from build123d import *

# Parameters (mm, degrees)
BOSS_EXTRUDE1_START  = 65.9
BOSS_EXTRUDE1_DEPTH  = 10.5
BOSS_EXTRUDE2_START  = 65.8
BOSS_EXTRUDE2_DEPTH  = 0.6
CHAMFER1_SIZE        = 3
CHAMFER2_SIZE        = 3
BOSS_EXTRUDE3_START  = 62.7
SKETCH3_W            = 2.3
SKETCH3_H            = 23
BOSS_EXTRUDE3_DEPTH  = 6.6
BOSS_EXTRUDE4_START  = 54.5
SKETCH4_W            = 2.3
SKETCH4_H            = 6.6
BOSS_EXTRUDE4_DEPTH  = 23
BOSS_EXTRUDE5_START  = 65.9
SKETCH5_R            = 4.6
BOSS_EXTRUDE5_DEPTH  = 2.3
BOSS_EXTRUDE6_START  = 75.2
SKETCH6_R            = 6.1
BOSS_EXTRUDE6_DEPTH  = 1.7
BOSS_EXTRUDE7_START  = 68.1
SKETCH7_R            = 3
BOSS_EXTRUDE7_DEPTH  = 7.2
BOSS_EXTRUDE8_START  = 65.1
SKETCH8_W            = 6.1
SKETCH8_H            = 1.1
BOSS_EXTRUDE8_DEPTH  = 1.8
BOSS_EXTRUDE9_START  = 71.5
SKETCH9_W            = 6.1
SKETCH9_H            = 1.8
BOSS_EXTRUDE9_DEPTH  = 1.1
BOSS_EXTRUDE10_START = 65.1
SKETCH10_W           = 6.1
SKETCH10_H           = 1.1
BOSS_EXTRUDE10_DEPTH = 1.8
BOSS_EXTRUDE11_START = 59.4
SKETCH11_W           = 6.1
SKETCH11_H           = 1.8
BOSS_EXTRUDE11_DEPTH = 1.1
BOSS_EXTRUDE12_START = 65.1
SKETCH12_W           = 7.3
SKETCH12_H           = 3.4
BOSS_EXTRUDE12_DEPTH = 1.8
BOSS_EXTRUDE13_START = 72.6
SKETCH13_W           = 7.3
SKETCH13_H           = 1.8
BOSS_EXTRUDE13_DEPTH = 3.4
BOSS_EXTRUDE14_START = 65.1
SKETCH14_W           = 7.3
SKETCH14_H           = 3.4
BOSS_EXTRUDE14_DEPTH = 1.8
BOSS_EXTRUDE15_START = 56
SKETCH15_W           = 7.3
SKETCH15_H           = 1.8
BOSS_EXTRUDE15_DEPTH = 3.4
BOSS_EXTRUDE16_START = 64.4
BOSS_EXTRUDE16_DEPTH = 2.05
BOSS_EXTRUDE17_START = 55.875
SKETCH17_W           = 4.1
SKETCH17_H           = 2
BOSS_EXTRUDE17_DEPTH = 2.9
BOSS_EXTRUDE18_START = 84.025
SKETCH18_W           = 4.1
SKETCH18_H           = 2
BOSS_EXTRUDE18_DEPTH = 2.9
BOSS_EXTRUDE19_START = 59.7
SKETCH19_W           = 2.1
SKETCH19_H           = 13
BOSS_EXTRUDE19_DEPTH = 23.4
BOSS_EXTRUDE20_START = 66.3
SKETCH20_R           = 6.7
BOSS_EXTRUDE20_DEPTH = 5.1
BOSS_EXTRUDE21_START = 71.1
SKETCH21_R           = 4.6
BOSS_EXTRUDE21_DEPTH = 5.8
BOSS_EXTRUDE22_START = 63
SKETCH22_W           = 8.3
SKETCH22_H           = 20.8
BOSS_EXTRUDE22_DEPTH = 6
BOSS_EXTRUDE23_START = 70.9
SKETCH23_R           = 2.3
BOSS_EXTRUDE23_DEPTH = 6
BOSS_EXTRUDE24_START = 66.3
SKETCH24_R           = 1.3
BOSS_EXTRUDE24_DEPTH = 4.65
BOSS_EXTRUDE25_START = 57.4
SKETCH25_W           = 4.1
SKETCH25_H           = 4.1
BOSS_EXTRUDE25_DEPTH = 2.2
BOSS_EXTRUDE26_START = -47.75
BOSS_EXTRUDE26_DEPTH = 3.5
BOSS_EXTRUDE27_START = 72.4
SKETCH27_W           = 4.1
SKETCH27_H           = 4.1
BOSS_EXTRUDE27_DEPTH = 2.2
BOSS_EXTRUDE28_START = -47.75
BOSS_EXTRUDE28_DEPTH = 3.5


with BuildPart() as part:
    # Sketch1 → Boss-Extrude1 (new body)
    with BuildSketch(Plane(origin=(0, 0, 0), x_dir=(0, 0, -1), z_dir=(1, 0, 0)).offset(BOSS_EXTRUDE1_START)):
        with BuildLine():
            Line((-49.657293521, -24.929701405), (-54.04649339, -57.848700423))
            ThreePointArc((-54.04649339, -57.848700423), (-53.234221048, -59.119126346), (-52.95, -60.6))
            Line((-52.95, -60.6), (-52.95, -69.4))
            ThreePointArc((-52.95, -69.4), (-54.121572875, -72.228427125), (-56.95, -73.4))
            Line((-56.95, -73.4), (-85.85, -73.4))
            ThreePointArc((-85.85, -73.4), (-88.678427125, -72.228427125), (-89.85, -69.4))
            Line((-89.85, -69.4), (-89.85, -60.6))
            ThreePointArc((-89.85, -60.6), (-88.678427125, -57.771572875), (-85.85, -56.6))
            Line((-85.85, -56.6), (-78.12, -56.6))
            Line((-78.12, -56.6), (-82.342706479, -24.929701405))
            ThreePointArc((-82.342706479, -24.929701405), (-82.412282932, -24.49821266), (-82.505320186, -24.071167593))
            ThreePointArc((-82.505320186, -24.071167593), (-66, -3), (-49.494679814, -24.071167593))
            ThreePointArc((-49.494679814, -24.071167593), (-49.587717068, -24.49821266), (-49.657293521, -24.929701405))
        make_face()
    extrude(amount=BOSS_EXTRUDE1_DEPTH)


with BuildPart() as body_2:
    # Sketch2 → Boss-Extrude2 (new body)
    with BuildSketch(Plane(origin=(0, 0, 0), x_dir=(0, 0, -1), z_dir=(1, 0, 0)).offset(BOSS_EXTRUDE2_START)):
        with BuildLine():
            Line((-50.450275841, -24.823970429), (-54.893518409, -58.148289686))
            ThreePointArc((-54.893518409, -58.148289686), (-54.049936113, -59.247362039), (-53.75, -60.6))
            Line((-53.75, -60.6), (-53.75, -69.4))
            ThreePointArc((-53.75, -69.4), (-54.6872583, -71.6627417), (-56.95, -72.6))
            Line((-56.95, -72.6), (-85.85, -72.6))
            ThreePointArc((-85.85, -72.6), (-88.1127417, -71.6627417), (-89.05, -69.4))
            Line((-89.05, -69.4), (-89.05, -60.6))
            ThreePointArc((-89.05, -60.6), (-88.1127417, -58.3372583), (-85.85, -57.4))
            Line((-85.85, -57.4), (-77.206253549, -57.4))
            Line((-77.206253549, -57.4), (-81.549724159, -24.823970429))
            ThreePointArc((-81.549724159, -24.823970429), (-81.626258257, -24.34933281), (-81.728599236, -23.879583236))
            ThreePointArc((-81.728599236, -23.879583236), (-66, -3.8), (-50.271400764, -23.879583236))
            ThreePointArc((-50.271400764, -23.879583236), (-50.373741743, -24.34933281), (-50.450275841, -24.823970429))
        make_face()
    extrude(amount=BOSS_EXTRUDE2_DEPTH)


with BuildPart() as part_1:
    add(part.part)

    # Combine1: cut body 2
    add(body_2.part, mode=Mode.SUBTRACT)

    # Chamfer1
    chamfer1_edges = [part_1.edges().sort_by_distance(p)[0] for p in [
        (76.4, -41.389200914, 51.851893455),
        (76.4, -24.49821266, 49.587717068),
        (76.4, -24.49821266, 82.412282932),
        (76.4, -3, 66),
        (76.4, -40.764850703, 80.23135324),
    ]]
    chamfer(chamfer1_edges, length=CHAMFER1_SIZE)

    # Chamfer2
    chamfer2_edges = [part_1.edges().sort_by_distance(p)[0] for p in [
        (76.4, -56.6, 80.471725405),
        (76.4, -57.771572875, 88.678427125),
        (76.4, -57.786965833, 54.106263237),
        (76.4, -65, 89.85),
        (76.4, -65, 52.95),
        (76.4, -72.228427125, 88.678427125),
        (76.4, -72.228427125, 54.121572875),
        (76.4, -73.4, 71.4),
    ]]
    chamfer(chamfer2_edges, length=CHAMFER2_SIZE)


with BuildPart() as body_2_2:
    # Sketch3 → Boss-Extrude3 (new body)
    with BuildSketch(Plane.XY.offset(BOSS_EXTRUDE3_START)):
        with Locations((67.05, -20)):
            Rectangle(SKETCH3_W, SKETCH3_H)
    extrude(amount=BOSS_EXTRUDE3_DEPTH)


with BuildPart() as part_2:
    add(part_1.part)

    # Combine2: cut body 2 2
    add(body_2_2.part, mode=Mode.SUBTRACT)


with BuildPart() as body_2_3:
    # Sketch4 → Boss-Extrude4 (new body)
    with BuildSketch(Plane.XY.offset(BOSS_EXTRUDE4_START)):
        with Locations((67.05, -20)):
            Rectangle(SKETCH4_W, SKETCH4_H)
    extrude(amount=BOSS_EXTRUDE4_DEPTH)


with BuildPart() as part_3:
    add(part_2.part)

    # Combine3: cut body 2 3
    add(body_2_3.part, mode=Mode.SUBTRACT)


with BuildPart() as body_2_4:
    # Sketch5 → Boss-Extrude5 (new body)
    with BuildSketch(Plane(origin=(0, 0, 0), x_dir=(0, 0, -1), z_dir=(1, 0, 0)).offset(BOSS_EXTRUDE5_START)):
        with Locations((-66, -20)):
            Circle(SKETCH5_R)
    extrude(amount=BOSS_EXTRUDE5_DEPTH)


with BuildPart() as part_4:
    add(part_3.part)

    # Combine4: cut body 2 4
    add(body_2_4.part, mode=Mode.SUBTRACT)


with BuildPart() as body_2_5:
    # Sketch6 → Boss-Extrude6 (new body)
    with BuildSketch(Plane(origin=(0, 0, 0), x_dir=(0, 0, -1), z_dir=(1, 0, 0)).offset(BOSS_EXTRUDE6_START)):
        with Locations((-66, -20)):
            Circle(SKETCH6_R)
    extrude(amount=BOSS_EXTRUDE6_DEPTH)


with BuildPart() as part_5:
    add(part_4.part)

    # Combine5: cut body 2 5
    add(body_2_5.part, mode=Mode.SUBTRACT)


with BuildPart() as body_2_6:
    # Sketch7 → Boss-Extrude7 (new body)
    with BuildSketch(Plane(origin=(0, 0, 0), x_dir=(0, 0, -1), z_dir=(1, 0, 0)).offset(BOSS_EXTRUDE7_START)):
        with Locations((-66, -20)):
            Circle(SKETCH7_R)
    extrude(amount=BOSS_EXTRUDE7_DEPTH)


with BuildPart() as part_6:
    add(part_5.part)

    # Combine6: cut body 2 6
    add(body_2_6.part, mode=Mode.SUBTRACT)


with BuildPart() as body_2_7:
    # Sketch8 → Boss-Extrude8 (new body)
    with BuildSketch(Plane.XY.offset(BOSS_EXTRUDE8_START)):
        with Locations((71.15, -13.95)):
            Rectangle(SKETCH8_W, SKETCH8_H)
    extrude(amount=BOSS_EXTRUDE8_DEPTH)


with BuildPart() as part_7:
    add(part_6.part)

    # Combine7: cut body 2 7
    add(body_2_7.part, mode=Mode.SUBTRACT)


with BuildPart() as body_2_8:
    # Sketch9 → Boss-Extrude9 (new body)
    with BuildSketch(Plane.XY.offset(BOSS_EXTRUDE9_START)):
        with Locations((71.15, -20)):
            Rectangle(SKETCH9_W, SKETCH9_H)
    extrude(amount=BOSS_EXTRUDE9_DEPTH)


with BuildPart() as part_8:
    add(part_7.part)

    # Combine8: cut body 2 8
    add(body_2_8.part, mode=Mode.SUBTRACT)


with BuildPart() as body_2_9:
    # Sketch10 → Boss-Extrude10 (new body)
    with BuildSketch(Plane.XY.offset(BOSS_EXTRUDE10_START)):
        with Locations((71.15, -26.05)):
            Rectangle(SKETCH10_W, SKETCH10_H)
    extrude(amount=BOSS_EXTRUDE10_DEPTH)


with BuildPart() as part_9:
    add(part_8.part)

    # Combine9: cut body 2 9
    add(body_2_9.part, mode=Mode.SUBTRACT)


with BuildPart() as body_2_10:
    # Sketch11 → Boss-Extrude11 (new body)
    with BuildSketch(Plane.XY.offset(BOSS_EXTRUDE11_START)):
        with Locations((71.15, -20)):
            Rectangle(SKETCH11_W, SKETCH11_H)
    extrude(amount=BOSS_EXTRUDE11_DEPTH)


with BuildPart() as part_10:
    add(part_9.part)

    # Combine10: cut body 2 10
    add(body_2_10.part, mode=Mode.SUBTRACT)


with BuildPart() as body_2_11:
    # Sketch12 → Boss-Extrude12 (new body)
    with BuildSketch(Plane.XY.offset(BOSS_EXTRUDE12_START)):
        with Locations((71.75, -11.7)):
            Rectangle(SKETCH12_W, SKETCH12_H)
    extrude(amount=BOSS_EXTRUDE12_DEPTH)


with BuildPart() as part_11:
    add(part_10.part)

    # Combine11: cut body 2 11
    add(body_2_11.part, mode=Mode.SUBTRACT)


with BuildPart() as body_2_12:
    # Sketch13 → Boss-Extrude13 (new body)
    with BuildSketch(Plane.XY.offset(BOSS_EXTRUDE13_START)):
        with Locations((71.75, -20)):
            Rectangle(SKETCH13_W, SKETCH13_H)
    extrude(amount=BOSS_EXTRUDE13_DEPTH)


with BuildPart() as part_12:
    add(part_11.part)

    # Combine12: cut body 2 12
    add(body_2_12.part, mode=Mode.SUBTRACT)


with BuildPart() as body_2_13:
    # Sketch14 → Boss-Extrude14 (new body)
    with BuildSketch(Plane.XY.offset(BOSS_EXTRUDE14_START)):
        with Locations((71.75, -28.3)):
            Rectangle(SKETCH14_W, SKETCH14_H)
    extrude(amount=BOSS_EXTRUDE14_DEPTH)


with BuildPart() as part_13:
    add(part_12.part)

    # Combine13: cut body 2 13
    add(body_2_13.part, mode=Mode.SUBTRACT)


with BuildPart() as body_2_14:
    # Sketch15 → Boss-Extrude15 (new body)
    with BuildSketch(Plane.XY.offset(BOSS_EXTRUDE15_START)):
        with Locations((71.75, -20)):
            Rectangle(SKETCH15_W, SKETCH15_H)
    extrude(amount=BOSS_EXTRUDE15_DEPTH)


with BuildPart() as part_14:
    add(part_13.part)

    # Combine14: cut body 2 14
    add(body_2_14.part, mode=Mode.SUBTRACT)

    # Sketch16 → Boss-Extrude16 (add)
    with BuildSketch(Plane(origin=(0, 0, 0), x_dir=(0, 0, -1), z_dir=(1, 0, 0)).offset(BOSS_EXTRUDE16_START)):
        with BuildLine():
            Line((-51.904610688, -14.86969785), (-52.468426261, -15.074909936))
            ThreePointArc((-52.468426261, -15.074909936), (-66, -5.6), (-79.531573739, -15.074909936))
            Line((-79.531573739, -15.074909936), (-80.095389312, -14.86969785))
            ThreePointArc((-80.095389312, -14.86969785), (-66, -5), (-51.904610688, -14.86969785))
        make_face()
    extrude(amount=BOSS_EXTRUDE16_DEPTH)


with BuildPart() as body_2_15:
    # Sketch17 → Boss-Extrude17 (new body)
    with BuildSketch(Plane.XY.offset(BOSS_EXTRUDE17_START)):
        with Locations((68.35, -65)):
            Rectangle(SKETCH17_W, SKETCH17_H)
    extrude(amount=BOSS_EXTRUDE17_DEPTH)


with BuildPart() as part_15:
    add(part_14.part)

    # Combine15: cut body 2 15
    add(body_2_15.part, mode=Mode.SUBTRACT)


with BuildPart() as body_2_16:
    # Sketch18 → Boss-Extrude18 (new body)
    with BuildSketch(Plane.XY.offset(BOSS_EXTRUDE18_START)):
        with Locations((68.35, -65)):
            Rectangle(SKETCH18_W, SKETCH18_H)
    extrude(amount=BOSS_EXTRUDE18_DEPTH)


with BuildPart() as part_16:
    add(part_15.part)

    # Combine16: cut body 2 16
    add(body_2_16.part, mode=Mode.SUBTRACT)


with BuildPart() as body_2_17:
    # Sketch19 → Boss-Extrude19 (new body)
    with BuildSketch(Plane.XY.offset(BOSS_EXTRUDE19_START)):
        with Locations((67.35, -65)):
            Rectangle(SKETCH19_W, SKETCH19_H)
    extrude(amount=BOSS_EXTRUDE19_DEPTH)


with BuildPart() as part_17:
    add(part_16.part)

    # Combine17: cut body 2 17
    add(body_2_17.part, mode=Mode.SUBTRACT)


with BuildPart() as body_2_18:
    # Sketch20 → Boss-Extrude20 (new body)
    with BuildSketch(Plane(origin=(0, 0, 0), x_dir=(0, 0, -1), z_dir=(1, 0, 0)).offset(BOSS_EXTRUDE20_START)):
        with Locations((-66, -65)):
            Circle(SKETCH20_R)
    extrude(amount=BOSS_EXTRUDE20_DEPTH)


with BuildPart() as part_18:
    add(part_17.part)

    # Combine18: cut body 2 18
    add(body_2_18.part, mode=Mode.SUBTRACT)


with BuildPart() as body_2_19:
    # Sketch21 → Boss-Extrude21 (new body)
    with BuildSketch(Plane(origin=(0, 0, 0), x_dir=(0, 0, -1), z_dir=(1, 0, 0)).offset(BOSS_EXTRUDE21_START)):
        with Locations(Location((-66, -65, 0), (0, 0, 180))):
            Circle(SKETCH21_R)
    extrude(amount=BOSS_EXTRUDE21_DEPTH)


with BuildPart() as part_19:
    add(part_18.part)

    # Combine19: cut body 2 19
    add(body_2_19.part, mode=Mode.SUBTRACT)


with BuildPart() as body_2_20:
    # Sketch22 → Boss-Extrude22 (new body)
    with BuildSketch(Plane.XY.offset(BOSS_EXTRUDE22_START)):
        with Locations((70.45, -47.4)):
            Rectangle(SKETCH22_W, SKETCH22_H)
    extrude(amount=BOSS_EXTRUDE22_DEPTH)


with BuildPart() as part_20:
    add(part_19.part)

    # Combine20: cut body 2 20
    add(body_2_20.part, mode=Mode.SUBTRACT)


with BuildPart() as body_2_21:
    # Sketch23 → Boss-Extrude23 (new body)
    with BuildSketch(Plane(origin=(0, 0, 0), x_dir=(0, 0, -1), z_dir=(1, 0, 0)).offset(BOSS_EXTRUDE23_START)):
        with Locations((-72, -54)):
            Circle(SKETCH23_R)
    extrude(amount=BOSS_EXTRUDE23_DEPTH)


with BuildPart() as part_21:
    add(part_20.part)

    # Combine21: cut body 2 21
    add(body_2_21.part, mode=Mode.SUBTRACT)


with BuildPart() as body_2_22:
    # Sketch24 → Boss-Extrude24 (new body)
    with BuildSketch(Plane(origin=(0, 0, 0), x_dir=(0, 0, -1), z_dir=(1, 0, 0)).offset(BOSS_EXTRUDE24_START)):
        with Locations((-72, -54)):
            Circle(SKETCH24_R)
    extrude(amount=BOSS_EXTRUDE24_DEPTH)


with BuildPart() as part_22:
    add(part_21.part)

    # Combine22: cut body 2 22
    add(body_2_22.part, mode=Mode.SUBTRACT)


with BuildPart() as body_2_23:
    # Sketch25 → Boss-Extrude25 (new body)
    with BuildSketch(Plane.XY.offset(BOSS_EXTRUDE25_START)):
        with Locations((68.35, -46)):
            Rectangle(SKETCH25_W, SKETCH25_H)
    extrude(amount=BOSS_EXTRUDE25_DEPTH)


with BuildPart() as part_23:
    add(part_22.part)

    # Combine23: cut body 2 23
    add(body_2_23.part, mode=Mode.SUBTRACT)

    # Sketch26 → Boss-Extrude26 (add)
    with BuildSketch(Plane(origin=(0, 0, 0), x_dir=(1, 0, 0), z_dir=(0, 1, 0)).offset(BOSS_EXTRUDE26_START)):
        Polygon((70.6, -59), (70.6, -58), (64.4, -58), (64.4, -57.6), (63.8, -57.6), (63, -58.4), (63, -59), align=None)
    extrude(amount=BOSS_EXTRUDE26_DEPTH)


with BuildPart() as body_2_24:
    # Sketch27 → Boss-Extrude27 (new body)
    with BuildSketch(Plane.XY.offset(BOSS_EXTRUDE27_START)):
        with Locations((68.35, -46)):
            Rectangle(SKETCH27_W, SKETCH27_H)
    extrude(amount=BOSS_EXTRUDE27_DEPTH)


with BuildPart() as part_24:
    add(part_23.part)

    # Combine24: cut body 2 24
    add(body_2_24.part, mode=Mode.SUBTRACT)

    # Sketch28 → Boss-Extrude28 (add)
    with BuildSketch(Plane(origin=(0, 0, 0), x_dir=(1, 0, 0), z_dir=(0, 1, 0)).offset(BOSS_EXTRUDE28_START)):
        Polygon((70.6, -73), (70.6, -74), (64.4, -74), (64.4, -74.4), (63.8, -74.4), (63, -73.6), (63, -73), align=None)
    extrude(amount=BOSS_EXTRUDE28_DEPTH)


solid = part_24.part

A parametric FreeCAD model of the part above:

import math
import FreeCAD as App
import Part
import Sketcher
from FreeCAD import Vector
Q = App.Units.Quantity


def edges_at(feature, points):
    """Names of the edges that pass closest to the given points."""
    edges = feature.Shape.Edges
    near = lambda p: min(range(len(edges)), key=lambda i: edges[i].distToShape(Part.Vertex(*p))[0])
    return sorted({f"Edge{near(p) + 1}" for p in points})


def add_polygon(sketch, points):
    """Adds a closed chain of lines whose ends are joined by coincident constraints."""
    first, n = sketch.GeometryCount, len(points)
    for a, b in zip(points, points[1:] + points[:1]):
        sketch.addGeometry(Part.LineSegment(App.Vector(*a, 0), App.Vector(*b, 0)), False)
    for i in range(n):
        sketch.addConstraint(Sketcher.Constraint("Coincident", first + i, 2, first + (i + 1) % n, 1))

doc = App.newDocument("Part")
body = doc.addObject("PartDesign::Body", "Body")

sketch1 = body.newObject("Sketcher::SketchObject", "Sketch")
sketch1.AttachmentSupport = (doc.getObject("YZ_Plane"), [""])
sketch1.MapMode = "FlatFace"
sketch1.AttachmentOffset = App.Placement(Vector(0, 0, 65.9), App.Rotation())
sketch1.addGeometry(Part.LineSegment(Vector(-57.8, 54, 0), Vector(-24.9, 49.7, 0)), False)
sketch1.addGeometry(Part.ArcOfCircle(Part.Circle(Vector(-26, 41.7, 0), Vector(0, 0, 1), 8), math.radians(76.14), math.radians(82.41)), False)
sketch1.addGeometry(Part.ArcOfCircle(Part.Circle(Vector(-20, 66, 0), Vector(0, 0, 1), 17), math.radians(-104), math.radians(104)), False)
sketch1.addGeometry(Part.ArcOfCircle(Part.Circle(Vector(-26, 90.3, 0), Vector(0, 0, 1), 8), math.radians(-82.41), math.radians(-76.14)), False)
sketch1.addGeometry(Part.LineSegment(Vector(-24.9, 82.3, 0), Vector(-56.6, 78.1, 0)), False)
sketch1.addGeometry(Part.LineSegment(Vector(-56.6, 78.1, 0), Vector(-56.6, 85.8, 0)), False)
sketch1.addGeometry(Part.ArcOfCircle(Part.Circle(Vector(-60.6, 85.9, 0), Vector(0, 0, 1), 4), math.radians(0), math.radians(90)), False)
sketch1.addGeometry(Part.LineSegment(Vector(-60.6, 89.8, 0), Vector(-69.4, 89.8, 0)), False)
sketch1.addGeometry(Part.ArcOfCircle(Part.Circle(Vector(-69.4, 85.9, 0), Vector(0, 0, 1), 4), math.radians(90), math.radians(180)), False)
sketch1.addGeometry(Part.LineSegment(Vector(-73.4, 85.8, 0), Vector(-73.4, 57, 0)), False)
sketch1.addGeometry(Part.ArcOfCircle(Part.Circle(Vector(-69.4, 56.9, 0), Vector(0, 0, 1), 4), math.radians(180), math.radians(270)), False)
sketch1.addGeometry(Part.LineSegment(Vector(-69.4, 53, 0), Vector(-60.6, 53, 0)), False)
sketch1.addGeometry(Part.ArcOfCircle(Part.Circle(Vector(-60.6, 56.9, 0), Vector(0, 0, 1), 4), math.radians(-90), math.radians(-47)), False)
sketch1.addConstraint(Sketcher.Constraint("Tangent", 0, 2, 1, 2))
sketch1.addConstraint(Sketcher.Constraint("Tangent", 1, 1, 2, 1))
sketch1.addConstraint(Sketcher.Constraint("Tangent", 2, 2, 3, 2))
sketch1.addConstraint(Sketcher.Constraint("Tangent", 3, 1, 4, 1))
sketch1.addConstraint(Sketcher.Constraint("Coincident", 4, 2, 5, 1))
sketch1.addConstraint(Sketcher.Constraint("Tangent", 5, 2, 6, 1))
sketch1.addConstraint(Sketcher.Constraint("Tangent", 6, 2, 7, 1))
sketch1.addConstraint(Sketcher.Constraint("Tangent", 7, 2, 8, 1))
sketch1.addConstraint(Sketcher.Constraint("Tangent", 8, 2, 9, 1))
sketch1.addConstraint(Sketcher.Constraint("Tangent", 9, 2, 10, 1))
sketch1.addConstraint(Sketcher.Constraint("Tangent", 10, 2, 11, 1))
sketch1.addConstraint(Sketcher.Constraint("Tangent", 11, 2, 12, 1))
sketch1.addConstraint(Sketcher.Constraint("Coincident", 12, 2, 0, 1))
sketch1.addConstraint(Sketcher.Constraint("Vertical", 5))
sketch1.addConstraint(Sketcher.Constraint("Horizontal", 7))
sketch1.addConstraint(Sketcher.Constraint("Vertical", 9))
sketch1.addConstraint(Sketcher.Constraint("Horizontal", 11))
sketch1.addConstraint(Sketcher.Constraint("Equal", 1, 3))
sketch1.addConstraint(Sketcher.Constraint("Equal", 6, 8))
sketch1.addConstraint(Sketcher.Constraint("Equal", 8, 10))
sketch1.addConstraint(Sketcher.Constraint("Equal", 10, 12))
sketch1.addConstraint(Sketcher.Constraint("Vertical", 1, 3, 3, 3))
sketch1.addConstraint(Sketcher.Constraint("Vertical", 6, 3, 12, 3))
sketch1.addConstraint(Sketcher.Constraint("Vertical", 0, 2, 3, 1))
sketch1.addConstraint(Sketcher.Constraint("Radius", 1, 8.0))
sketch1.addConstraint(Sketcher.Constraint("Radius", 2, 17.0))
sketch1.addConstraint(Sketcher.Constraint("Radius", 6, 4.0))
sketch1.addConstraint(Sketcher.Constraint("DistanceX", 7, 2, 7, 1, 8.8))
sketch1.addConstraint(Sketcher.Constraint("DistanceY", 9, 2, 9, 1, 28.9))
sketch1.addConstraint(Sketcher.Constraint("DistanceX", 2, 3, -1, 1, 20.0))
sketch1.addConstraint(Sketcher.Constraint("DistanceY", -1, 1, 2, 3, 66.0))
sketch1.addConstraint(Sketcher.Constraint("DistanceY", 5, 1, 5, 2, 7.73))
sketch1.addConstraint(Sketcher.Constraint("DistanceX", 6, 3, -1, 1, 60.6))
sketch1.addConstraint(Sketcher.Constraint("DistanceY", -1, 1, 6, 3, 85.85))
sketch1.addConstraint(Sketcher.Constraint("DistanceX", 0, 2, -1, 1, 24.929701))
pad1 = body.newObject("PartDesign::Pad", "Pad")
pad1.Profile = sketch1
pad1.Length = 10.5
body2 = doc.addObject("PartDesign::Body", "Body001")

sketch2 = body2.newObject("Sketcher::SketchObject", "Sketch001")
sketch2.AttachmentSupport = (doc.getObject("YZ_Plane001"), [""])
sketch2.MapMode = "FlatFace"
sketch2.AttachmentOffset = App.Placement(Vector(0, 0, 65.8), App.Rotation())
sketch2.addGeometry(Part.LineSegment(Vector(-58.1, 54.9, 0), Vector(-24.8, 50.5, 0)), False)
sketch2.addGeometry(Part.ArcOfCircle(Part.Circle(Vector(-26, 41.7, 0), Vector(0, 0, 1), 8.8), math.radians(76.14), math.radians(82.41)), False)
sketch2.addGeometry(Part.ArcOfCircle(Part.Circle(Vector(-20, 66, 0), Vector(0, 0, 1), 16.2), math.radians(-104), math.radians(104)), False)
sketch2.addGeometry(Part.ArcOfCircle(Part.Circle(Vector(-26, 90.3, 0), Vector(0, 0, 1), 8.8), math.radians(-82.41), math.radians(-76.14)), False)
sketch2.addGeometry(Part.LineSegment(Vector(-24.8, 81.5, 0), Vector(-57.4, 77.2, 0)), False)
sketch2.addGeometry(Part.LineSegment(Vector(-57.4, 77.2, 0), Vector(-57.4, 85.8, 0)), False)
sketch2.addGeometry(Part.ArcOfCircle(Part.Circle(Vector(-60.6, 85.9, 0), Vector(0, 0, 1), 3.2), math.radians(0), math.radians(90)), False)
sketch2.addGeometry(Part.LineSegment(Vector(-60.6, 89, 0), Vector(-69.4, 89, 0)), False)
sketch2.addGeometry(Part.ArcOfCircle(Part.Circle(Vector(-69.4, 85.9, 0), Vector(0, 0, 1), 3.2), math.radians(90), math.radians(180)), False)
sketch2.addGeometry(Part.LineSegment(Vector(-72.6, 85.8, 0), Vector(-72.6, 57, 0)), False)
sketch2.addGeometry(Part.ArcOfCircle(Part.Circle(Vector(-69.4, 56.9, 0), Vector(0, 0, 1), 3.2), math.radians(180), math.radians(270)), False)
sketch2.addGeometry(Part.LineSegment(Vector(-69.4, 53.8, 0), Vector(-60.6, 53.8, 0)), False)
sketch2.addGeometry(Part.ArcOfCircle(Part.Circle(Vector(-60.6, 56.9, 0), Vector(0, 0, 1), 3.2), math.radians(-90), math.radians(-40)), False)
sketch2.addConstraint(Sketcher.Constraint("Tangent", 0, 2, 1, 2))
sketch2.addConstraint(Sketcher.Constraint("Tangent", 1, 1, 2, 1))
sketch2.addConstraint(Sketcher.Constraint("Tangent", 2, 2, 3, 2))
sketch2.addConstraint(Sketcher.Constraint("Tangent", 3, 1, 4, 1))
sketch2.addConstraint(Sketcher.Constraint("Coincident", 4, 2, 5, 1))
sketch2.addConstraint(Sketcher.Constraint("Tangent", 5, 2, 6, 1))
sketch2.addConstraint(Sketcher.Constraint("Tangent", 6, 2, 7, 1))
sketch2.addConstraint(Sketcher.Constraint("Tangent", 7, 2, 8, 1))
sketch2.addConstraint(Sketcher.Constraint("Tangent", 8, 2, 9, 1))
sketch2.addConstraint(Sketcher.Constraint("Tangent", 9, 2, 10, 1))
sketch2.addConstraint(Sketcher.Constraint("Tangent", 10, 2, 11, 1))
sketch2.addConstraint(Sketcher.Constraint("Tangent", 11, 2, 12, 1))
sketch2.addConstraint(Sketcher.Constraint("Coincident", 12, 2, 0, 1))
sketch2.addConstraint(Sketcher.Constraint("Vertical", 5))
sketch2.addConstraint(Sketcher.Constraint("Horizontal", 7))
sketch2.addConstraint(Sketcher.Constraint("Vertical", 9))
sketch2.addConstraint(Sketcher.Constraint("Horizontal", 11))
sketch2.addConstraint(Sketcher.Constraint("Equal", 1, 3))
sketch2.addConstraint(Sketcher.Constraint("Equal", 6, 8))
sketch2.addConstraint(Sketcher.Constraint("Equal", 8, 10))
sketch2.addConstraint(Sketcher.Constraint("Equal", 10, 12))
sketch2.addConstraint(Sketcher.Constraint("Vertical", 1, 3, 3, 3))
sketch2.addConstraint(Sketcher.Constraint("Vertical", 6, 3, 12, 3))
sketch2.addConstraint(Sketcher.Constraint("Vertical", 0, 2, 3, 1))
sketch2.addConstraint(Sketcher.Constraint("Radius", 1, 8.8))
sketch2.addConstraint(Sketcher.Constraint("Radius", 2, 16.2))
sketch2.addConstraint(Sketcher.Constraint("Radius", 6, 3.2))
sketch2.addConstraint(Sketcher.Constraint("DistanceX", 7, 2, 7, 1, 8.8))
sketch2.addConstraint(Sketcher.Constraint("DistanceY", 9, 2, 9, 1, 28.9))
sketch2.addConstraint(Sketcher.Constraint("DistanceX", 2, 3, -1, 1, 20.0))
sketch2.addConstraint(Sketcher.Constraint("DistanceY", -1, 1, 2, 3, 66.0))
sketch2.addConstraint(Sketcher.Constraint("DistanceX", 6, 3, -1, 1, 60.6))
sketch2.addConstraint(Sketcher.Constraint("DistanceY", -1, 1, 6, 3, 85.85))
sketch2.addConstraint(Sketcher.Constraint("DistanceY", -1, 1, 1, 1, 50.271401))
sketch2.addConstraint(Sketcher.Constraint("Distance", 0, 33.61923))
pad2 = body2.newObject("PartDesign::Pad", "Pad001")
pad2.Profile = sketch2
pad2.Length = 0.6
doc.recompute()

boolean = body.newObject("PartDesign::Boolean", "Boolean")
boolean.Type = "Cut"
boolean.addObjects([body2])
doc.recompute()

chamfer = body.newObject("PartDesign::Chamfer", "Chamfer")
chamfer.Base = (boolean, edges_at(boolean, [
    (76.4, -41.389, 51.852),
    (76.4, -24.498, 49.588),
    (76.4, -24.498, 82.412),
    (76.4, -3, 66),
    (76.4, -40.765, 80.231),
]))
chamfer.Size = 3
doc.recompute()

chamfer2 = body.newObject("PartDesign::Chamfer", "Chamfer001")
chamfer2.Base = (chamfer, edges_at(chamfer, [
    (76.4, -56.6, 80.472),
    (76.4, -57.772, 88.678),
    (76.4, -57.787, 54.106),
    (76.4, -65, 89.85),
    (76.4, -65, 52.95),
    (76.4, -72.228, 88.678),
    (76.4, -72.228, 54.122),
    (76.4, -73.4, 71.4),
]))
chamfer2.Size = 3
body3 = doc.addObject("PartDesign::Body", "Body002")

sketch3 = body3.newObject("Sketcher::SketchObject", "Sketch002")
sketch3.AttachmentSupport = (doc.getObject("XY_Plane002"), [""])
sketch3.MapMode = "FlatFace"
sketch3.AttachmentOffset = App.Placement(Vector(0, 0, 62.7), App.Rotation())
add_polygon(sketch3, [(65.9, -8.5), (65.9, -31.5), (68.2, -31.5), (68.2, -8.5)])
sketch3.addConstraint(Sketcher.Constraint("Vertical", 0))
sketch3.addConstraint(Sketcher.Constraint("Horizontal", 1))
sketch3.addConstraint(Sketcher.Constraint("Vertical", 2))
sketch3.addConstraint(Sketcher.Constraint("Horizontal", 3))
sketch3.addConstraint(Sketcher.Constraint("DistanceY", 0, 2, 0, 1, 23.0))
sketch3.addConstraint(Sketcher.Constraint("DistanceX", 1, 1, 1, 2, 2.3))
sketch3.addConstraint(Sketcher.Constraint("DistanceX", -1, 1, 0, 2, 65.9))
sketch3.addConstraint(Sketcher.Constraint("DistanceY", 0, 2, -1, 1, 31.5))
pad3 = body3.newObject("PartDesign::Pad", "Pad002")
pad3.Profile = sketch3
pad3.Length = 6.6
doc.recompute()

boolean2 = body.newObject("PartDesign::Boolean", "Boolean001")
boolean2.Type = "Cut"
boolean2.addObjects([body3])
body4 = doc.addObject("PartDesign::Body", "Body003")

sketch4 = body4.newObject("Sketcher::SketchObject", "Sketch003")
sketch4.AttachmentSupport = (doc.getObject("XY_Plane003"), [""])
sketch4.MapMode = "FlatFace"
sketch4.AttachmentOffset = App.Placement(Vector(0, 0, 54.5), App.Rotation())
add_polygon(sketch4, [(65.9, -16.7), (65.9, -23.3), (68.2, -23.3), (68.2, -16.7)])
sketch4.addConstraint(Sketcher.Constraint("Vertical", 0))
sketch4.addConstraint(Sketcher.Constraint("Horizontal", 1))
sketch4.addConstraint(Sketcher.Constraint("Vertical", 2))
sketch4.addConstraint(Sketcher.Constraint("Horizontal", 3))
sketch4.addConstraint(Sketcher.Constraint("DistanceX", 1, 1, 1, 2, 2.3))
sketch4.addConstraint(Sketcher.Constraint("DistanceY", 0, 2, 0, 1, 6.6))
sketch4.addConstraint(Sketcher.Constraint("DistanceX", -1, 1, 0, 2, 65.9))
sketch4.addConstraint(Sketcher.Constraint("DistanceY", 0, 2, -1, 1, 23.3))
pad4 = body4.newObject("PartDesign::Pad", "Pad003")
pad4.Profile = sketch4
pad4.Length = 23
doc.recompute()

boolean3 = body.newObject("PartDesign::Boolean", "Boolean002")
boolean3.Type = "Cut"
boolean3.addObjects([body4])
body5 = doc.addObject("PartDesign::Body", "Body004")

sketch5 = body5.newObject("Sketcher::SketchObject", "Sketch004")
sketch5.AttachmentSupport = (doc.getObject("YZ_Plane004"), [""])
sketch5.MapMode = "FlatFace"
sketch5.AttachmentOffset = App.Placement(Vector(0, 0, 65.9), App.Rotation())
sketch5.addGeometry(Part.Circle(Vector(-20, 66, 0), Vector(0, 0, 1), 4.6), False)
sketch5.addConstraint(Sketcher.Constraint("Diameter", 0, 9.2))
sketch5.addConstraint(Sketcher.Constraint("DistanceX", 0, 3, -1, 1, 20.0))
sketch5.addConstraint(Sketcher.Constraint("DistanceY", -1, 1, 0, 3, 66.0))
pad5 = body5.newObject("PartDesign::Pad", "Pad004")
pad5.Profile = sketch5
pad5.Length = 2.3
doc.recompute()

boolean4 = body.newObject("PartDesign::Boolean", "Boolean003")
boolean4.Type = "Cut"
boolean4.addObjects([body5])
body6 = doc.addObject("PartDesign::Body", "Body005")

sketch6 = body6.newObject("Sketcher::SketchObject", "Sketch005")
sketch6.AttachmentSupport = (doc.getObject("YZ_Plane005"), [""])
sketch6.MapMode = "FlatFace"
sketch6.AttachmentOffset = App.Placement(Vector(0, 0, 75.2), App.Rotation())
sketch6.addGeometry(Part.Circle(Vector(-20, 66, 0), Vector(0, 0, 1), 6), False)
sketch6.addConstraint(Sketcher.Constraint("Diameter", 0, 12.2))
sketch6.addConstraint(Sketcher.Constraint("DistanceX", 0, 3, -1, 1, 20.0))
sketch6.addConstraint(Sketcher.Constraint("DistanceY", -1, 1, 0, 3, 66.0))
pad6 = body6.newObject("PartDesign::Pad", "Pad005")
pad6.Profile = sketch6
pad6.Length = 1.7
doc.recompute()

boolean5 = body.newObject("PartDesign::Boolean", "Boolean004")
boolean5.Type = "Cut"
boolean5.addObjects([body6])
body7 = doc.addObject("PartDesign::Body", "Body006")

sketch7 = body7.newObject("Sketcher::SketchObject", "Sketch006")
sketch7.AttachmentSupport = (doc.getObject("YZ_Plane006"), [""])
sketch7.MapMode = "FlatFace"
sketch7.AttachmentOffset = App.Placement(Vector(0, 0, 68.1), App.Rotation())
sketch7.addGeometry(Part.Circle(Vector(-20, 66, 0), Vector(0, 0, 1), 3), False)
sketch7.addConstraint(Sketcher.Constraint("Diameter", 0, 6.0))
sketch7.addConstraint(Sketcher.Constraint("DistanceX", 0, 3, -1, 1, 20.0))
sketch7.addConstraint(Sketcher.Constraint("DistanceY", -1, 1, 0, 3, 66.0))
pad7 = body7.newObject("PartDesign::Pad", "Pad006")
pad7.Profile = sketch7
pad7.Length = 7.2
doc.recompute()

boolean6 = body.newObject("PartDesign::Boolean", "Boolean005")
boolean6.Type = "Cut"
boolean6.addObjects([body7])
body8 = doc.addObject("PartDesign::Body", "Body007")

sketch8 = body8.newObject("Sketcher::SketchObject", "Sketch007")
sketch8.AttachmentSupport = (doc.getObject("XY_Plane007"), [""])
sketch8.MapMode = "FlatFace"
sketch8.AttachmentOffset = App.Placement(Vector(0, 0, 65.1), App.Rotation())
add_polygon(sketch8, [(68.1, -13.4), (68.1, -14.5), (74.2, -14.5), (74.2, -13.4)])
sketch8.addConstraint(Sketcher.Constraint("Vertical", 0))
sketch8.addConstraint(Sketcher.Constraint("Horizontal", 1))
sketch8.addConstraint(Sketcher.Constraint("Vertical", 2))
sketch8.addConstraint(Sketcher.Constraint("Horizontal", 3))
sketch8.addConstraint(Sketcher.Constraint("DistanceX", 1, 1, 1, 2, 6.1))
sketch8.addConstraint(Sketcher.Constraint("DistanceY", 0, 2, 0, 1, 1.1))
sketch8.addConstraint(Sketcher.Constraint("DistanceX", -1, 1, 0, 2, 68.1))
sketch8.addConstraint(Sketcher.Constraint("DistanceY", 0, 2, -1, 1, 14.5))
pad8 = body8.newObject("PartDesign::Pad", "Pad007")
pad8.Profile = sketch8
pad8.Length = 1.8
doc.recompute()

boolean7 = body.newObject("PartDesign::Boolean", "Boolean006")
boolean7.Type = "Cut"
boolean7.addObjects([body8])
body9 = doc.addObject("PartDesign::Body", "Body008")

sketch9 = body9.newObject("Sketcher::SketchObject", "Sketch008")
sketch9.AttachmentSupport = (doc.getObject("XY_Plane008"), [""])
sketch9.MapMode = "FlatFace"
sketch9.AttachmentOffset = App.Placement(Vector(0, 0, 71.5), App.Rotation())
add_polygon(sketch9, [(68.1, -19.1), (68.1, -20.9), (74.2, -20.9), (74.2, -19.1)])
sketch9.addConstraint(Sketcher.Constraint("Vertical", 0))
sketch9.addConstraint(Sketcher.Constraint("Horizontal", 1))
sketch9.addConstraint(Sketcher.Constraint("Vertical", 2))
sketch9.addConstraint(Sketcher.Constraint("Horizontal", 3))
sketch9.addConstraint(Sketcher.Constraint("DistanceX", 1, 1, 1, 2, 6.1))
sketch9.addConstraint(Sketcher.Constraint("DistanceY", 0, 2, 0, 1, 1.8))
sketch9.addConstraint(Sketcher.Constraint("DistanceX", -1, 1, 0, 2, 68.1))
sketch9.addConstraint(Sketcher.Constraint("DistanceY", 0, 2, -1, 1, 20.9))
pad9 = body9.newObject("PartDesign::Pad", "Pad008")
pad9.Profile = sketch9
pad9.Length = 1.1
doc.recompute()

boolean8 = body.newObject("PartDesign::Boolean", "Boolean007")
boolean8.Type = "Cut"
boolean8.addObjects([body9])
body10 = doc.addObject("PartDesign::Body", "Body009")

sketch10 = body10.newObject("Sketcher::SketchObject", "Sketch009")
sketch10.AttachmentSupport = (doc.getObject("XY_Plane009"), [""])
sketch10.MapMode = "FlatFace"
sketch10.AttachmentOffset = App.Placement(Vector(0, 0, 65.1), App.Rotation())
add_polygon(sketch10, [(68.1, -25.5), (68.1, -26.6), (74.2, -26.6), (74.2, -25.5)])
sketch10.addConstraint(Sketcher.Constraint("Vertical", 0))
sketch10.addConstraint(Sketcher.Constraint("Horizontal", 1))
sketch10.addConstraint(Sketcher.Constraint("Vertical", 2))
sketch10.addConstraint(Sketcher.Constraint("Horizontal", 3))
sketch10.addConstraint(Sketcher.Constraint("DistanceX", 1, 1, 1, 2, 6.1))
sketch10.addConstraint(Sketcher.Constraint("DistanceY", 0, 2, 0, 1, 1.1))
sketch10.addConstraint(Sketcher.Constraint("DistanceX", -1, 1, 0, 2, 68.1))
sketch10.addConstraint(Sketcher.Constraint("DistanceY", 0, 2, -1, 1, 26.6))
pad10 = body10.newObject("PartDesign::Pad", "Pad009")
pad10.Profile = sketch10
pad10.Length = 1.8
doc.recompute()

boolean9 = body.newObject("PartDesign::Boolean", "Boolean008")
boolean9.Type = "Cut"
boolean9.addObjects([body10])
body11 = doc.addObject("PartDesign::Body", "Body010")

sketch11 = body11.newObject("Sketcher::SketchObject", "Sketch010")
sketch11.AttachmentSupport = (doc.getObject("XY_Plane010"), [""])
sketch11.MapMode = "FlatFace"
sketch11.AttachmentOffset = App.Placement(Vector(0, 0, 59.4), App.Rotation())
add_polygon(sketch11, [(68.1, -19.1), (68.1, -20.9), (74.2, -20.9), (74.2, -19.1)])
sketch11.addConstraint(Sketcher.Constraint("Vertical", 0))
sketch11.addConstraint(Sketcher.Constraint("Horizontal", 1))
sketch11.addConstraint(Sketcher.Constraint("Vertical", 2))
sketch11.addConstraint(Sketcher.Constraint("Horizontal", 3))
sketch11.addConstraint(Sketcher.Constraint("DistanceX", 1, 1, 1, 2, 6.1))
sketch11.addConstraint(Sketcher.Constraint("DistanceY", 0, 2, 0, 1, 1.8))
sketch11.addConstraint(Sketcher.Constraint("DistanceX", -1, 1, 0, 2, 68.1))
sketch11.addConstraint(Sketcher.Constraint("DistanceY", 0, 2, -1, 1, 20.9))
pad11 = body11.newObject("PartDesign::Pad", "Pad010")
pad11.Profile = sketch11
pad11.Length = 1.1
doc.recompute()

boolean10 = body.newObject("PartDesign::Boolean", "Boolean009")
boolean10.Type = "Cut"
boolean10.addObjects([body11])
body12 = doc.addObject("PartDesign::Body", "Body011")

sketch12 = body12.newObject("Sketcher::SketchObject", "Sketch011")
sketch12.AttachmentSupport = (doc.getObject("XY_Plane011"), [""])
sketch12.MapMode = "FlatFace"
sketch12.AttachmentOffset = App.Placement(Vector(0, 0, 65.1), App.Rotation())
add_polygon(sketch12, [(68.1, -10), (68.1, -13.4), (75.4, -13.4), (75.4, -10)])
sketch12.addConstraint(Sketcher.Constraint("Vertical", 0))
sketch12.addConstraint(Sketcher.Constraint("Horizontal", 1))
sketch12.addConstraint(Sketcher.Constraint("Vertical", 2))
sketch12.addConstraint(Sketcher.Constraint("Horizontal", 3))
sketch12.addConstraint(Sketcher.Constraint("DistanceX", 1, 1, 1, 2, 7.3))
sketch12.addConstraint(Sketcher.Constraint("DistanceY", 0, 2, 0, 1, 3.4))
sketch12.addConstraint(Sketcher.Constraint("DistanceY", 2, 2, -1, 1, 10.0))
sketch12.addConstraint(Sketcher.Constraint("DistanceX", -1, 1, 0, 2, 68.1))
pad12 = body12.newObject("PartDesign::Pad", "Pad011")
pad12.Profile = sketch12
pad12.Length = 1.8
doc.recompute()

boolean11 = body.newObject("PartDesign::Boolean", "Boolean010")
boolean11.Type = "Cut"
boolean11.addObjects([body12])
body13 = doc.addObject("PartDesign::Body", "Body012")

sketch13 = body13.newObject("Sketcher::SketchObject", "Sketch012")
sketch13.AttachmentSupport = (doc.getObject("XY_Plane012"), [""])
sketch13.MapMode = "FlatFace"
sketch13.AttachmentOffset = App.Placement(Vector(0, 0, 72.6), App.Rotation())
add_polygon(sketch13, [(68.1, -19.1), (68.1, -20.9), (75.4, -20.9), (75.4, -19.1)])
sketch13.addConstraint(Sketcher.Constraint("Vertical", 0))
sketch13.addConstraint(Sketcher.Constraint("Horizontal", 1))
sketch13.addConstraint(Sketcher.Constraint("Vertical", 2))
sketch13.addConstraint(Sketcher.Constraint("Horizontal", 3))
sketch13.addConstraint(Sketcher.Constraint("DistanceX", 1, 1, 1, 2, 7.3))
sketch13.addConstraint(Sketcher.Constraint("DistanceY", 0, 2, 0, 1, 1.8))
sketch13.addConstraint(Sketcher.Constraint("DistanceX", -1, 1, 0, 2, 68.1))
sketch13.addConstraint(Sketcher.Constraint("DistanceY", 0, 2, -1, 1, 20.9))
pad13 = body13.newObject("PartDesign::Pad", "Pad012")
pad13.Profile = sketch13
pad13.Length = 3.4
doc.recompute()

boolean12 = body.newObject("PartDesign::Boolean", "Boolean011")
boolean12.Type = "Cut"
boolean12.addObjects([body13])
body14 = doc.addObject("PartDesign::Body", "Body013")

sketch14 = body14.newObject("Sketcher::SketchObject", "Sketch013")
sketch14.AttachmentSupport = (doc.getObject("XY_Plane013"), [""])
sketch14.MapMode = "FlatFace"
sketch14.AttachmentOffset = App.Placement(Vector(0, 0, 65.1), App.Rotation())
add_polygon(sketch14, [(68.1, -26.6), (68.1, -30), (75.4, -30), (75.4, -26.6)])
sketch14.addConstraint(Sketcher.Constraint("Vertical", 0))
sketch14.addConstraint(Sketcher.Constraint("Horizontal", 1))
sketch14.addConstraint(Sketcher.Constraint("Vertical", 2))
sketch14.addConstraint(Sketcher.Constraint("Horizontal", 3))
sketch14.addConstraint(Sketcher.Constraint("DistanceX", 1, 1, 1, 2, 7.3))
sketch14.addConstraint(Sketcher.Constraint("DistanceY", 0, 2, 0, 1, 3.4))
sketch14.addConstraint(Sketcher.Constraint("DistanceY", 0, 2, -1, 1, 30.0))
sketch14.addConstraint(Sketcher.Constraint("DistanceX", -1, 1, 0, 2, 68.1))
pad14 = body14.newObject("PartDesign::Pad", "Pad013")
pad14.Profile = sketch14
pad14.Length = 1.8
doc.recompute()

boolean13 = body.newObject("PartDesign::Boolean", "Boolean012")
boolean13.Type = "Cut"
boolean13.addObjects([body14])
body15 = doc.addObject("PartDesign::Body", "Body014")

sketch15 = body15.newObject("Sketcher::SketchObject", "Sketch014")
sketch15.AttachmentSupport = (doc.getObject("XY_Plane014"), [""])
sketch15.MapMode = "FlatFace"
sketch15.AttachmentOffset = App.Placement(Vector(0, 0, 56), App.Rotation())
add_polygon(sketch15, [(68.1, -19.1), (68.1, -20.9), (75.4, -20.9), (75.4, -19.1)])
sketch15.addConstraint(Sketcher.Constraint("Vertical", 0))
sketch15.addConstraint(Sketcher.Constraint("Horizontal", 1))
sketch15.addConstraint(Sketcher.Constraint("Vertical", 2))
sketch15.addConstraint(Sketcher.Constraint("Horizontal", 3))
sketch15.addConstraint(Sketcher.Constraint("DistanceX", 1, 1, 1, 2, 7.3))
sketch15.addConstraint(Sketcher.Constraint("DistanceY", 0, 2, 0, 1, 1.8))
sketch15.addConstraint(Sketcher.Constraint("DistanceX", -1, 1, 0, 2, 68.1))
sketch15.addConstraint(Sketcher.Constraint("DistanceY", 0, 2, -1, 1, 20.9))
pad15 = body15.newObject("PartDesign::Pad", "Pad014")
pad15.Profile = sketch15
pad15.Length = 3.4
doc.recompute()

boolean14 = body.newObject("PartDesign::Boolean", "Boolean013")
boolean14.Type = "Cut"
boolean14.addObjects([body15])

sketch16 = body.newObject("Sketcher::SketchObject", "Sketch015")
sketch16.AttachmentSupport = (doc.getObject("YZ_Plane"), [""])
sketch16.MapMode = "FlatFace"
sketch16.AttachmentOffset = App.Placement(Vector(0, 0, 64.4), App.Rotation())
sketch16.addGeometry(Part.LineSegment(Vector(-15.1, 52.5, 0), Vector(-14.9, 51.9, 0)), False)
sketch16.addGeometry(Part.ArcOfCircle(Part.Circle(Vector(-20, 66, 0), Vector(0, 0, 1), 15), math.radians(-70), math.radians(70)), False)
sketch16.addGeometry(Part.LineSegment(Vector(-14.9, 80.1, 0), Vector(-15.1, 79.5, 0)), False)
sketch16.addGeometry(Part.ArcOfCircle(Part.Circle(Vector(-20, 66, 0), Vector(0, 0, 1), 14.4), math.radians(-70), math.radians(70)), False)
sketch16.addConstraint(Sketcher.Constraint("Coincident", 0, 2, 1, 1))
sketch16.addConstraint(Sketcher.Constraint("Coincident", 1, 2, 2, 1))
sketch16.addConstraint(Sketcher.Constraint("Coincident", 2, 2, 3, 2))
sketch16.addConstraint(Sketcher.Constraint("Coincident", 3, 1, 0, 1))
sketch16.addConstraint(Sketcher.Constraint("Coincident", 3, 3, 1, 3))
sketch16.addConstraint(Sketcher.Constraint("Vertical", 0, 2, 1, 2))
sketch16.addConstraint(Sketcher.Constraint("Vertical", 2, 2, 3, 1))
sketch16.addConstraint(Sketcher.Constraint("Radius", 1, 15.0))
sketch16.addConstraint(Sketcher.Constraint("Radius", 3, 14.4))
sketch16.addConstraint(Sketcher.Constraint("Angle", 0, Q("-70 deg")))
sketch16.addConstraint(Sketcher.Constraint("DistanceX", 1, 3, -1, 1, 20.0))
sketch16.addConstraint(Sketcher.Constraint("DistanceY", -1, 1, 1, 3, 66.0))
sketch16.addConstraint(Sketcher.Constraint("DistanceY", -1, 1, 0, 2, 51.904611))
pad16 = body.newObject("PartDesign::Pad", "Pad015")
pad16.Profile = sketch16
pad16.Length = 2.05
body16 = doc.addObject("PartDesign::Body", "Body015")

sketch17 = body16.newObject("Sketcher::SketchObject", "Sketch016")
sketch17.AttachmentSupport = (doc.getObject("XY_Plane015"), [""])
sketch17.MapMode = "FlatFace"
sketch17.AttachmentOffset = App.Placement(Vector(0, 0, 55.875), App.Rotation())
add_polygon(sketch17, [(66.3, -64), (66.3, -66), (70.4, -66), (70.4, -64)])
sketch17.addConstraint(Sketcher.Constraint("Vertical", 0))
sketch17.addConstraint(Sketcher.Constraint("Horizontal", 1))
sketch17.addConstraint(Sketcher.Constraint("Vertical", 2))
sketch17.addConstraint(Sketcher.Constraint("Horizontal", 3))
sketch17.addConstraint(Sketcher.Constraint("DistanceY", 0, 2, 0, 1, 2.0))
sketch17.addConstraint(Sketcher.Constraint("DistanceX", 1, 1, 1, 2, 4.1))
sketch17.addConstraint(Sketcher.Constraint("DistanceY", 0, 2, -1, 1, 66.0))
sketch17.addConstraint(Sketcher.Constraint("DistanceX", -1, 1, 0, 2, 66.3))
pad17 = body16.newObject("PartDesign::Pad", "Pad016")
pad17.Profile = sketch17
pad17.Length = 2.9
doc.recompute()

boolean15 = body.newObject("PartDesign::Boolean", "Boolean014")
boolean15.Type = "Cut"
boolean15.addObjects([body16])
body17 = doc.addObject("PartDesign::Body", "Body016")

sketch18 = body17.newObject("Sketcher::SketchObject", "Sketch017")
sketch18.AttachmentSupport = (doc.getObject("XY_Plane016"), [""])
sketch18.MapMode = "FlatFace"
sketch18.AttachmentOffset = App.Placement(Vector(0, 0, 84.025), App.Rotation())
add_polygon(sketch18, [(66.3, -64), (66.3, -66), (70.4, -66), (70.4, -64)])
sketch18.addConstraint(Sketcher.Constraint("Vertical", 0))
sketch18.addConstraint(Sketcher.Constraint("Horizontal", 1))
sketch18.addConstraint(Sketcher.Constraint("Vertical", 2))
sketch18.addConstraint(Sketcher.Constraint("Horizontal", 3))
sketch18.addConstraint(Sketcher.Constraint("DistanceY", 0, 2, 0, 1, 2.0))
sketch18.addConstraint(Sketcher.Constraint("DistanceX", 1, 1, 1, 2, 4.1))
sketch18.addConstraint(Sketcher.Constraint("DistanceY", 0, 2, -1, 1, 66.0))
sketch18.addConstraint(Sketcher.Constraint("DistanceX", -1, 1, 0, 2, 66.3))
pad18 = body17.newObject("PartDesign::Pad", "Pad017")
pad18.Profile = sketch18
pad18.Length = 2.9
doc.recompute()

boolean16 = body.newObject("PartDesign::Boolean", "Boolean015")
boolean16.Type = "Cut"
boolean16.addObjects([body17])
body18 = doc.addObject("PartDesign::Body", "Body017")

sketch19 = body18.newObject("Sketcher::SketchObject", "Sketch018")
sketch19.AttachmentSupport = (doc.getObject("XY_Plane017"), [""])
sketch19.MapMode = "FlatFace"
sketch19.AttachmentOffset = App.Placement(Vector(0, 0, 59.7), App.Rotation())
add_polygon(sketch19, [(66.3, -58.5), (66.3, -71.5), (68.4, -71.5), (68.4, -58.5)])
sketch19.addConstraint(Sketcher.Constraint("Vertical", 0))
sketch19.addConstraint(Sketcher.Constraint("Horizontal", 1))
sketch19.addConstraint(Sketcher.Constraint("Vertical", 2))
sketch19.addConstraint(Sketcher.Constraint("Horizontal", 3))
sketch19.addConstraint(Sketcher.Constraint("DistanceY", 0, 2, 0, 1, 13.0))
sketch19.addConstraint(Sketcher.Constraint("DistanceX", 1, 1, 1, 2, 2.1))
sketch19.addConstraint(Sketcher.Constraint("DistanceX", -1, 1, 0, 2, 66.3))
sketch19.addConstraint(Sketcher.Constraint("DistanceY", 0, 2, -1, 1, 71.5))
pad19 = body18.newObject("PartDesign::Pad", "Pad018")
pad19.Profile = sketch19
pad19.Length = 23.4
doc.recompute()

boolean17 = body.newObject("PartDesign::Boolean", "Boolean016")
boolean17.Type = "Cut"
boolean17.addObjects([body18])
body19 = doc.addObject("PartDesign::Body", "Body018")

sketch20 = body19.newObject("Sketcher::SketchObject", "Sketch019")
sketch20.AttachmentSupport = (doc.getObject("YZ_Plane018"), [""])
sketch20.MapMode = "FlatFace"
sketch20.AttachmentOffset = App.Placement(Vector(0, 0, 66.3), App.Rotation())
sketch20.addGeometry(Part.Circle(Vector(-65, 66, 0), Vector(0, 0, 1), 7), False)
sketch20.addConstraint(Sketcher.Constraint("Diameter", 0, 13.4))
sketch20.addConstraint(Sketcher.Constraint("DistanceX", 0, 3, -1, 1, 65.0))
sketch20.addConstraint(Sketcher.Constraint("DistanceY", -1, 1, 0, 3, 66.0))
pad20 = body19.newObject("PartDesign::Pad", "Pad019")
pad20.Profile = sketch20
pad20.Length = 5.1
doc.recompute()

boolean18 = body.newObject("PartDesign::Boolean", "Boolean017")
boolean18.Type = "Cut"
boolean18.addObjects([body19])
body20 = doc.addObject("PartDesign::Body", "Body019")

sketch21 = body20.newObject("Sketcher::SketchObject", "Sketch020")
sketch21.AttachmentSupport = (doc.getObject("YZ_Plane019"), [""])
sketch21.MapMode = "FlatFace"
sketch21.AttachmentOffset = App.Placement(Vector(0, 0, 71.1), App.Rotation())
sketch21.addGeometry(Part.Circle(Vector(-65, 66, 0), Vector(0, 0, 1), 4.6), False)
sketch21.addConstraint(Sketcher.Constraint("Diameter", 0, 9.2))
sketch21.addConstraint(Sketcher.Constraint("DistanceX", 0, 3, -1, 1, 65.0))
sketch21.addConstraint(Sketcher.Constraint("DistanceY", -1, 1, 0, 3, 66.0))
pad21 = body20.newObject("PartDesign::Pad", "Pad020")
pad21.Profile = sketch21
pad21.Length = 5.8
doc.recompute()

boolean19 = body.newObject("PartDesign::Boolean", "Boolean018")
boolean19.Type = "Cut"
boolean19.addObjects([body20])
body21 = doc.addObject("PartDesign::Body", "Body020")

sketch22 = body21.newObject("Sketcher::SketchObject", "Sketch021")
sketch22.AttachmentSupport = (doc.getObject("XY_Plane020"), [""])
sketch22.MapMode = "FlatFace"
sketch22.AttachmentOffset = App.Placement(Vector(0, 0, 63), App.Rotation())
add_polygon(sketch22, [(66, -37), (66, -58), (75, -58), (75, -37)])
sketch22.addConstraint(Sketcher.Constraint("Vertical", 0))
sketch22.addConstraint(Sketcher.Constraint("Horizontal", 1))
sketch22.addConstraint(Sketcher.Constraint("Vertical", 2))
sketch22.addConstraint(Sketcher.Constraint("Horizontal", 3))
sketch22.addConstraint(Sketcher.Constraint("DistanceX", 1, 1, 1, 2, 8.3))
sketch22.addConstraint(Sketcher.Constraint("DistanceY", 0, 2, 0, 1, 20.8))
sketch22.addConstraint(Sketcher.Constraint("DistanceY", 2, 2, -1, 1, 37.0))
sketch22.addConstraint(Sketcher.Constraint("DistanceX", -1, 1, 0, 2, 66.3))
pad22 = body21.newObject("PartDesign::Pad", "Pad021")
pad22.Profile = sketch22
pad22.Length = 6
doc.recompute()

boolean20 = body.newObject("PartDesign::Boolean", "Boolean019")
boolean20.Type = "Cut"
boolean20.addObjects([body21])
body22 = doc.addObject("PartDesign::Body", "Body021")

sketch23 = body22.newObject("Sketcher::SketchObject", "Sketch022")
sketch23.AttachmentSupport = (doc.getObject("YZ_Plane021"), [""])
sketch23.MapMode = "FlatFace"
sketch23.AttachmentOffset = App.Placement(Vector(0, 0, 70.9), App.Rotation())
sketch23.addGeometry(Part.Circle(Vector(-54, 72, 0), Vector(0, 0, 1), 2.3), False)
sketch23.addConstraint(Sketcher.Constraint("Diameter", 0, 4.6))
sketch23.addConstraint(Sketcher.Constraint("DistanceX", 0, 3, -1, 1, 54.0))
sketch23.addConstraint(Sketcher.Constraint("DistanceY", -1, 1, 0, 3, 72.0))
pad23 = body22.newObject("PartDesign::Pad", "Pad022")
pad23.Profile = sketch23
pad23.Length = 6
doc.recompute()

boolean21 = body.newObject("PartDesign::Boolean", "Boolean020")
boolean21.Type = "Cut"
boolean21.addObjects([body22])
body23 = doc.addObject("PartDesign::Body", "Body022")

sketch24 = body23.newObject("Sketcher::SketchObject", "Sketch023")
sketch24.AttachmentSupport = (doc.getObject("YZ_Plane022"), [""])
sketch24.MapMode = "FlatFace"
sketch24.AttachmentOffset = App.Placement(Vector(0, 0, 66.3), App.Rotation())
sketch24.addGeometry(Part.Circle(Vector(-54, 72, 0), Vector(0, 0, 1), 1.3), False)
sketch24.addConstraint(Sketcher.Constraint("Diameter", 0, 2.6))
sketch24.addConstraint(Sketcher.Constraint("DistanceX", 0, 3, -1, 1, 54.0))
sketch24.addConstraint(Sketcher.Constraint("DistanceY", -1, 1, 0, 3, 72.0))
pad24 = body23.newObject("PartDesign::Pad", "Pad023")
pad24.Profile = sketch24
pad24.Length = 4.65
doc.recompute()

boolean22 = body.newObject("PartDesign::Boolean", "Boolean021")
boolean22.Type = "Cut"
boolean22.addObjects([body23])
body24 = doc.addObject("PartDesign::Body", "Body023")

sketch25 = body24.newObject("Sketcher::SketchObject", "Sketch024")
sketch25.AttachmentSupport = (doc.getObject("XY_Plane023"), [""])
sketch25.MapMode = "FlatFace"
sketch25.AttachmentOffset = App.Placement(Vector(0, 0, 57.4), App.Rotation())
add_polygon(sketch25, [(66.3, -44), (66.3, -48), (70.4, -48), (70.4, -44)])
sketch25.addConstraint(Sketcher.Constraint("Vertical", 0))
sketch25.addConstraint(Sketcher.Constraint("Horizontal", 1))
sketch25.addConstraint(Sketcher.Constraint("Vertical", 2))
sketch25.addConstraint(Sketcher.Constraint("Horizontal", 3))
sketch25.addConstraint(Sketcher.Constraint("Equal", 3, 0))
sketch25.addConstraint(Sketcher.Constraint("DistanceX", 1, 1, 1, 2, 4.1))
sketch25.addConstraint(Sketcher.Constraint("DistanceX", -1, 1, 0, 2, 66.3))
sketch25.addConstraint(Sketcher.Constraint("DistanceY", 0, 2, -1, 1, 48.05))
pad25 = body24.newObject("PartDesign::Pad", "Pad024")
pad25.Profile = sketch25
pad25.Length = 2.2
doc.recompute()

boolean23 = body.newObject("PartDesign::Boolean", "Boolean022")
boolean23.Type = "Cut"
boolean23.addObjects([body24])

sketch26 = body.newObject("Sketcher::SketchObject", "Sketch025")
sketch26.AttachmentSupport = (doc.getObject("XZ_Plane"), [""])
sketch26.MapMode = "FlatFace"
sketch26.AttachmentOffset = App.Placement(Vector(0, 0, 47.75), App.Rotation())
add_polygon(sketch26, [(70.6, 59), (70.6, 58), (64.4, 58), (64.4, 57.6), (63.8, 57.6), (63, 58.4), (63, 59)])
sketch26.addConstraint(Sketcher.Constraint("Vertical", 0))
sketch26.addConstraint(Sketcher.Constraint("Horizontal", 1))
sketch26.addConstraint(Sketcher.Constraint("Vertical", 2))
sketch26.addConstraint(Sketcher.Constraint("Horizontal", 3))
sketch26.addConstraint(Sketcher.Constraint("Vertical", 5))
sketch26.addConstraint(Sketcher.Constraint("Horizontal", 6))
sketch26.addConstraint(Sketcher.Constraint("Equal", 3, 5))
sketch26.addConstraint(Sketcher.Constraint("DistanceY", 0, 2, 0, 1, 1.0))
sketch26.addConstraint(Sketcher.Constraint("Angle", 4, Q("135 deg")))
sketch26.addConstraint(Sketcher.Constraint("DistanceX", 1, 2, 1, 1, 6.2))
sketch26.addConstraint(Sketcher.Constraint("DistanceX", 3, 2, 3, 1, 0.6))
sketch26.addConstraint(Sketcher.Constraint("DistanceX", 6, 1, 6, 2, 7.6))
sketch26.addConstraint(Sketcher.Constraint("DistanceY", -1, 1, 0, 2, 58.0))
sketch26.addConstraint(Sketcher.Constraint("DistanceX", -1, 1, 4, 2, 63.0))
pad26 = body.newObject("PartDesign::Pad", "Pad025")
pad26.Profile = sketch26
pad26.Length = 3.5
pad26.Reversed = True
body25 = doc.addObject("PartDesign::Body", "Body024")

sketch27 = body25.newObject("Sketcher::SketchObject", "Sketch026")
sketch27.AttachmentSupport = (doc.getObject("XY_Plane024"), [""])
sketch27.MapMode = "FlatFace"
sketch27.AttachmentOffset = App.Placement(Vector(0, 0, 72.4), App.Rotation())
add_polygon(sketch27, [(66.3, -44), (66.3, -48), (70.4, -48), (70.4, -44)])
sketch27.addConstraint(Sketcher.Constraint("Vertical", 0))
sketch27.addConstraint(Sketcher.Constraint("Horizontal", 1))
sketch27.addConstraint(Sketcher.Constraint("Vertical", 2))
sketch27.addConstraint(Sketcher.Constraint("Horizontal", 3))
sketch27.addConstraint(Sketcher.Constraint("Equal", 3, 0))
sketch27.addConstraint(Sketcher.Constraint("DistanceX", 1, 1, 1, 2, 4.1))
sketch27.addConstraint(Sketcher.Constraint("DistanceX", -1, 1, 0, 2, 66.3))
sketch27.addConstraint(Sketcher.Constraint("DistanceY", 0, 2, -1, 1, 48.05))
pad27 = body25.newObject("PartDesign::Pad", "Pad026")
pad27.Profile = sketch27
pad27.Length = 2.2
doc.recompute()

boolean24 = body.newObject("PartDesign::Boolean", "Boolean023")
boolean24.Type = "Cut"
boolean24.addObjects([body25])

sketch28 = body.newObject("Sketcher::SketchObject", "Sketch027")
sketch28.AttachmentSupport = (doc.getObject("XZ_Plane"), [""])
sketch28.MapMode = "FlatFace"
sketch28.AttachmentOffset = App.Placement(Vector(0, 0, 47.75), App.Rotation())
add_polygon(sketch28, [(70.6, 74), (70.6, 73), (63, 73), (63, 73.6), (63.8, 74.4), (64.4, 74.4), (64.4, 74)])
sketch28.addConstraint(Sketcher.Constraint("Vertical", 0))
sketch28.addConstraint(Sketcher.Constraint("Horizontal", 1))
sketch28.addConstraint(Sketcher.Constraint("Vertical", 2))
sketch28.addConstraint(Sketcher.Constraint("Horizontal", 4))
sketch28.addConstraint(Sketcher.Constraint("Vertical", 5))
sketch28.addConstraint(Sketcher.Constraint("Horizontal", 6))
sketch28.addConstraint(Sketcher.Constraint("Equal", 4, 2))
sketch28.addConstraint(Sketcher.Constraint("DistanceY", 0, 2, 0, 1, 1.0))
sketch28.addConstraint(Sketcher.Constraint("Angle", 3, Q("45 deg")))
sketch28.addConstraint(Sketcher.Constraint("DistanceX", 1, 2, 1, 1, 7.6))
sketch28.addConstraint(Sketcher.Constraint("DistanceX", 4, 1, 4, 2, 0.6))
sketch28.addConstraint(Sketcher.Constraint("DistanceX", 6, 1, 6, 2, 6.2))
sketch28.addConstraint(Sketcher.Constraint("DistanceY", -1, 1, 0, 2, 73.0))
sketch28.addConstraint(Sketcher.Constraint("DistanceX", -1, 1, 1, 2, 63.0))
pad28 = body.newObject("PartDesign::Pad", "Pad027")
pad28.Profile = sketch28
pad28.Length = 3.5
pad28.Reversed = True

doc.recompute()
